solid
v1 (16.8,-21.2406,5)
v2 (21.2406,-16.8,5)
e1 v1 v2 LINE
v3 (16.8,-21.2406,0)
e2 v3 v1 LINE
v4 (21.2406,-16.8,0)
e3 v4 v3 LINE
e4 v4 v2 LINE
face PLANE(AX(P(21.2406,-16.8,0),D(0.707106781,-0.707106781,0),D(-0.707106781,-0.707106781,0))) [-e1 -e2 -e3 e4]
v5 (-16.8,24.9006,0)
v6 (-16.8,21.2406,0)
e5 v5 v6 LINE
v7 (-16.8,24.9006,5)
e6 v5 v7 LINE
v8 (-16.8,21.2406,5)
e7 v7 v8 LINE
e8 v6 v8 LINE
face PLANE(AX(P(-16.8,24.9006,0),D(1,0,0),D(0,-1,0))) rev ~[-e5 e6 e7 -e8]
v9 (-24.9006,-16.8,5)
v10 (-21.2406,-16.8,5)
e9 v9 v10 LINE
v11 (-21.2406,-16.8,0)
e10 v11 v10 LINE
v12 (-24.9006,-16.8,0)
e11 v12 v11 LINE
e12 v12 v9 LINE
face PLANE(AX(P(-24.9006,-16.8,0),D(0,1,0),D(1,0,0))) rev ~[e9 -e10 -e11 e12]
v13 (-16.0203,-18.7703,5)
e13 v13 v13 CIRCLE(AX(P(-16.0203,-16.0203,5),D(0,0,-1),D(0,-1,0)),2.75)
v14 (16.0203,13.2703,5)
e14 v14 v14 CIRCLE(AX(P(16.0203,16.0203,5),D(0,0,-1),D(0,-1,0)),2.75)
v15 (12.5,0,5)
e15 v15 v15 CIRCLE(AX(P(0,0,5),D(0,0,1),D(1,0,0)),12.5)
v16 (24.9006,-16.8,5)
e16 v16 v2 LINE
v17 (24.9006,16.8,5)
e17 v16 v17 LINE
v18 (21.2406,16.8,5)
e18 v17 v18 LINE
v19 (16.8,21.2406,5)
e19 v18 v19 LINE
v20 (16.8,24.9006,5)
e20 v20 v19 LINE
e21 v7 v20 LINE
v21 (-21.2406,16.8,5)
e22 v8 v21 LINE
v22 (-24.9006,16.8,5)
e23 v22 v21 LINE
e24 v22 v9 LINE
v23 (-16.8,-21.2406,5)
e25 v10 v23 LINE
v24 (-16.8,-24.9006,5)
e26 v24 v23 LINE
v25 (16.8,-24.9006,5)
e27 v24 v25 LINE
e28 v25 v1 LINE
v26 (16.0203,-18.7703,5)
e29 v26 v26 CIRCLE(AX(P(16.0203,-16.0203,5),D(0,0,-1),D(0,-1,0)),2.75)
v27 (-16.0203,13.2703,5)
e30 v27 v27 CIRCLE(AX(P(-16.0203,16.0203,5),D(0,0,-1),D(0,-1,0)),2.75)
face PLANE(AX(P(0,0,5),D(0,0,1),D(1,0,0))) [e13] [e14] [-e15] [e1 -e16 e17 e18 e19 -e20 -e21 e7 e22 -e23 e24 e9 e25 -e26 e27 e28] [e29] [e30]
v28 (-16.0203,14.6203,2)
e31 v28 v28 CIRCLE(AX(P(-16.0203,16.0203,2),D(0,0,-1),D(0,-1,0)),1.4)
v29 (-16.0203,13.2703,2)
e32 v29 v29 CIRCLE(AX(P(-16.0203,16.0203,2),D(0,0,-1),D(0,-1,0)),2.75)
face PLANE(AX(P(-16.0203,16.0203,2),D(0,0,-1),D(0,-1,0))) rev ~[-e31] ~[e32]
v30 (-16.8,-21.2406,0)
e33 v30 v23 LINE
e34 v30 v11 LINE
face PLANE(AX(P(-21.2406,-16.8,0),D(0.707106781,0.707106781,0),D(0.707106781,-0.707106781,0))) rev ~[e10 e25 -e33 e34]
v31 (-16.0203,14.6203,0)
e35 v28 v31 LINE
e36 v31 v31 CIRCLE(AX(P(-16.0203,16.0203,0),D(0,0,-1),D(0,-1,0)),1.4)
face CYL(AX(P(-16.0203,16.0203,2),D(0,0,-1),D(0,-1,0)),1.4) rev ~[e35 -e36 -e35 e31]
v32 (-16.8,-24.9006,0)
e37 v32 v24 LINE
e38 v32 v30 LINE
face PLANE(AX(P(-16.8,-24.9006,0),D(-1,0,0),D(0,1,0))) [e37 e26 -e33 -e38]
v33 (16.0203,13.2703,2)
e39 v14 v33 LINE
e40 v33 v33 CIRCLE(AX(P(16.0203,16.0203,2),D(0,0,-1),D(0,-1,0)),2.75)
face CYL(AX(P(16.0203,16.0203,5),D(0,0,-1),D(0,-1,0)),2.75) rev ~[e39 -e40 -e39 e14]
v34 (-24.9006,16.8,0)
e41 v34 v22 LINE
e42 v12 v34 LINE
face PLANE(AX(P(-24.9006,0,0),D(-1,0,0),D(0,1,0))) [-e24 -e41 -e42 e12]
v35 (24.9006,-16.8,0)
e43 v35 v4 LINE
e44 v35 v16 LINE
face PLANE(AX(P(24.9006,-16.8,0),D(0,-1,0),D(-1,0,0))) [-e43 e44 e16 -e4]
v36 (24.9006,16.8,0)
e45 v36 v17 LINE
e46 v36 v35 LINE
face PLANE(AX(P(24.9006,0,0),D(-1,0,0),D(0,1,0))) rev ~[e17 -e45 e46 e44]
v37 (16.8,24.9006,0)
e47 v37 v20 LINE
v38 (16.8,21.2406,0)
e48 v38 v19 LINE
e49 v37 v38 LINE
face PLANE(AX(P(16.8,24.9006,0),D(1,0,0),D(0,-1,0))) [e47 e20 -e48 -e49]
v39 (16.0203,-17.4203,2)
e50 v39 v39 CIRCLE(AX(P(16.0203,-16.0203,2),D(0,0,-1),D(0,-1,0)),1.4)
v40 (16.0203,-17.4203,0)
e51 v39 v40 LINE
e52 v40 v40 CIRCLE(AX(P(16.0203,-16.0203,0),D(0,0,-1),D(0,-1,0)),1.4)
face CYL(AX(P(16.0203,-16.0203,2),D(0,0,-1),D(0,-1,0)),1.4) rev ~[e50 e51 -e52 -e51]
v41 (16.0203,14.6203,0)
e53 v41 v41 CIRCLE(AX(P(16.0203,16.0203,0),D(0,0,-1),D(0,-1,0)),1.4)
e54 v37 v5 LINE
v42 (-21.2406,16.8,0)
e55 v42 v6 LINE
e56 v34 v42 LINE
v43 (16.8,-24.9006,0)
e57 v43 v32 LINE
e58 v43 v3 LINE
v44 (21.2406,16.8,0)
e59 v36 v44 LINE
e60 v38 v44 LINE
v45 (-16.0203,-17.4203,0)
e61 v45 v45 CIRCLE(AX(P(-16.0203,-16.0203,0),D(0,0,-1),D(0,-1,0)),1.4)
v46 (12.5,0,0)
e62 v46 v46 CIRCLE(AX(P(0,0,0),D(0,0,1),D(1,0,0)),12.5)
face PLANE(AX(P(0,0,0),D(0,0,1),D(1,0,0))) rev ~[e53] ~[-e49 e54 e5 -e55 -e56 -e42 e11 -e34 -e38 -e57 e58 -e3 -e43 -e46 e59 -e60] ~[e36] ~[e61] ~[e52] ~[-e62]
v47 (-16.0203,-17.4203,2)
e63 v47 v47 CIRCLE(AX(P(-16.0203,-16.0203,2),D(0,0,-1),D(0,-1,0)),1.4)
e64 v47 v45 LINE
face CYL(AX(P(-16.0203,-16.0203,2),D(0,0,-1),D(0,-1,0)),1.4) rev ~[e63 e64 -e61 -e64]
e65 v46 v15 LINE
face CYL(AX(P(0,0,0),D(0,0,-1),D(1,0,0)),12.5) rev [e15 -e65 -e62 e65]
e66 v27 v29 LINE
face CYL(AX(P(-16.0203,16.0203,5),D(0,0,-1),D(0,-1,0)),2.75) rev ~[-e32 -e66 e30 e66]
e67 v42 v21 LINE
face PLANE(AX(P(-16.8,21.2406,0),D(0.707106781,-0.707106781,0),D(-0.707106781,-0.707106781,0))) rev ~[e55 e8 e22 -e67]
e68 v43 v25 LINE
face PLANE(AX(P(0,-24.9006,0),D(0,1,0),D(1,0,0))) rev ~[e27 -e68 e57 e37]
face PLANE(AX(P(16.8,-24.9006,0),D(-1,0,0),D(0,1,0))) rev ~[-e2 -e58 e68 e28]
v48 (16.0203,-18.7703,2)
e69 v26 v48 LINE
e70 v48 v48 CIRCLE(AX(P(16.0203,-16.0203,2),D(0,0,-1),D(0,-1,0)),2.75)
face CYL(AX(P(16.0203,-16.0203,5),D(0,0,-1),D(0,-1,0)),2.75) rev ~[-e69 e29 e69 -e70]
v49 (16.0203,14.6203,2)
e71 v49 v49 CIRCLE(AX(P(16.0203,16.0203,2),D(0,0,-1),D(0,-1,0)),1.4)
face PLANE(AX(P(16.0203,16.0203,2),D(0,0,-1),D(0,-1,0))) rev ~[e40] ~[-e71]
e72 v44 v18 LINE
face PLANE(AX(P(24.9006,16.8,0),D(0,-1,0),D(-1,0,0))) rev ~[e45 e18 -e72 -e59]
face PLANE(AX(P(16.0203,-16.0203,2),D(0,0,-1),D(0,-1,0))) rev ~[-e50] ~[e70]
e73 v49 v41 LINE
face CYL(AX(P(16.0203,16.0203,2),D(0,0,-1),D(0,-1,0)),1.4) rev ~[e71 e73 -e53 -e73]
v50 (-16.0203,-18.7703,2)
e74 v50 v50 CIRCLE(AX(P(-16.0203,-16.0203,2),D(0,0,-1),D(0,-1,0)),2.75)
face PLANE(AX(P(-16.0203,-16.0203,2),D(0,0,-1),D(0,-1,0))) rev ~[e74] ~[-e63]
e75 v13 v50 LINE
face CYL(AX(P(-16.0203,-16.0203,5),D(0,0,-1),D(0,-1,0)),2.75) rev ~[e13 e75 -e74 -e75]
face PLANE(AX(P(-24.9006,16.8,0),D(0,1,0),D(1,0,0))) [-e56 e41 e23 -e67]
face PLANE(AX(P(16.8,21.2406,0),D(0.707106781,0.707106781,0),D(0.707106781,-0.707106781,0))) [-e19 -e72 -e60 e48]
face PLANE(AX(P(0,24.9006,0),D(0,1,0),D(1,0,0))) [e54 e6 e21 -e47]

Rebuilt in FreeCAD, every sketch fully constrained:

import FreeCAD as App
import Part
import Sketcher
from FreeCAD import Vector


def add_polygon(sketch, points):
    """Adds a closed chain of lines whose ends are joined by coincident constraints."""
    first, n = sketch.GeometryCount, len(points)
    for a, b in zip(points, points[1:] + points[:1]):
        sketch.addGeometry(Part.LineSegment(App.Vector(*a, 0), App.Vector(*b, 0)), False)
    for i in range(n):
        sketch.addConstraint(Sketcher.Constraint("Coincident", first + i, 2, first + (i + 1) % n, 1))

doc = App.newDocument("Part")
body = doc.addObject("PartDesign::Body", "Body")

# Sketch on XY plane
sketch1 = doc.addObject("Sketcher::SketchObject", "Sketch")
body.addObject(sketch1)
sketch1.AttachmentSupport = (doc.XY_Plane, [""])
sketch1.MapMode = "FlatFace"
add_polygon(sketch1, [(16.8, 24.9), (-16.8, 24.9), (-16.8, 21.2), (-21.2, 16.8), (-24.9, 16.8), (-24.9, -16.8), (-21.2, -16.8), (-16.8, -21.2), (-16.8, -24.9), (16.8, -24.9), (16.8, -21.2), (21.2, -16.8), (24.9, -16.8), (24.9, 16.8), (21.2, 16.8), (16.8, 21.2)])  # lines 0-15
sketch1.addGeometry(Part.Circle(Vector(0, 0, 0), Vector(0, 0, 1), 12.5), False)  # 16
sketch1.addConstraint(Sketcher.Constraint("Horizontal", 0))
sketch1.addConstraint(Sketcher.Constraint("Vertical", 1))
sketch1.addConstraint(Sketcher.Constraint("Horizontal", 3))
sketch1.addConstraint(Sketcher.Constraint("Vertical", 4))
sketch1.addConstraint(Sketcher.Constraint("Horizontal", 5))
sketch1.addConstraint(Sketcher.Constraint("Vertical", 7))
sketch1.addConstraint(Sketcher.Constraint("Horizontal", 8))
sketch1.addConstraint(Sketcher.Constraint("Vertical", 9))
sketch1.addConstraint(Sketcher.Constraint("Horizontal", 11))
sketch1.addConstraint(Sketcher.Constraint("Vertical", 12))
sketch1.addConstraint(Sketcher.Constraint("Horizontal", 13))
sketch1.addConstraint(Sketcher.Constraint("Vertical", 15))
sketch1.addConstraint(Sketcher.Constraint("Coincident", 16, 3, -1, 1))
sketch1.addConstraint(Sketcher.Constraint("Symmetric", 0, 2, 8, 2, -1, 1))
sketch1.addConstraint(Sketcher.Constraint("Symmetric", 2, 2, 10, 2, -1, 1))
sketch1.addConstraint(Sketcher.Constraint("Symmetric", 4, 2, 12, 2, -1, 1))
sketch1.addConstraint(Sketcher.Constraint("Symmetric", 6, 2, 14, 2, -1, 1))
sketch1.addConstraint(Sketcher.Constraint("Symmetric", 6, 2, 9, 2, -2))
sketch1.addConstraint(Sketcher.Constraint("Symmetric", 5, 2, 10, 2, -2))
sketch1.addConstraint(Sketcher.Constraint("Perpendicular", 2, 6))
sketch1.addConstraint(Sketcher.Constraint("Perpendicular", 6, 10))
sketch1.addConstraint(Sketcher.Constraint("Perpendicular", 10, 14))
sketch1.addConstraint(Sketcher.Constraint("Equal", 13, 1))
sketch1.addConstraint(Sketcher.Constraint("Equal", 8, 4))
sketch1.addConstraint(Sketcher.Constraint("Diameter", 16, 25.0))
sketch1.addConstraint(Sketcher.Constraint("DistanceX", 3, 2, 3, 1, 3.66))
sketch1.addConstraint(Sketcher.Constraint("DistanceX", 0, 2, -1, 1, 16.8))
sketch1.addConstraint(Sketcher.Constraint("Distance", 2, 6.28))
pad1 = doc.addObject("PartDesign::Pad", "Pad")
body.addObject(pad1)
pad1.Profile = sketch1
pad1.Length = 5

# Sketch on XY plane
sketch2 = doc.addObject("Sketcher::SketchObject", "Sketch001")
body.addObject(sketch2)
sketch2.AttachmentSupport = (doc.XY_Plane, [""])
sketch2.MapMode = "FlatFace"
sketch2.AttachmentOffset = App.Placement(Vector(0, 0, 5), App.Rotation())
sketch2.addGeometry(Part.Circle(Vector(-16, 16, 0), Vector(0, 0, 1), 1.4), False)
sketch2.addGeometry(Part.Circle(Vector(16, 16, 0), Vector(0, 0, 1), 1.4), False)
sketch2.addGeometry(Part.Circle(Vector(16, -16, 0), Vector(0, 0, 1), 1.4), False)
sketch2.addGeometry(Part.Circle(Vector(-16, -16, 0), Vector(0, 0, 1), 1.4), False)
sketch2.addConstraint(Sketcher.Constraint("Equal", 0, 1))
sketch2.addConstraint(Sketcher.Constraint("Equal", 1, 2))
sketch2.addConstraint(Sketcher.Constraint("Equal", 2, 3))
sketch2.addConstraint(Sketcher.Constraint("Symmetric", 0, 3, 2, 3, -1, 1))
sketch2.addConstraint(Sketcher.Constraint("Symmetric", 1, 3, 3, 3, -1, 1))
sketch2.addConstraint(Sketcher.Constraint("Symmetric", 0, 3, 1, 3, -2))
sketch2.addConstraint(Sketcher.Constraint("Diameter", 0, 2.8))
sketch2.addConstraint(Sketcher.Constraint("DistanceX", 0, 3, -1, 1, 16.0203))
sketch2.addConstraint(Sketcher.Constraint("DistanceY", -1, 1, 0, 3, 16.0203))
doc.recompute()
hole = doc.addObject("PartDesign::Hole", "Hole")
body.addObject(hole)
hole.Profile = sketch2
hole.ThreadType = "None"
hole.Diameter = 2.8
hole.DepthType = "ThroughAll"
hole.HoleCutType = "Counterbore"
hole.HoleCutDiameter = 5.5
hole.HoleCutDepth = 3

doc.recompute()
